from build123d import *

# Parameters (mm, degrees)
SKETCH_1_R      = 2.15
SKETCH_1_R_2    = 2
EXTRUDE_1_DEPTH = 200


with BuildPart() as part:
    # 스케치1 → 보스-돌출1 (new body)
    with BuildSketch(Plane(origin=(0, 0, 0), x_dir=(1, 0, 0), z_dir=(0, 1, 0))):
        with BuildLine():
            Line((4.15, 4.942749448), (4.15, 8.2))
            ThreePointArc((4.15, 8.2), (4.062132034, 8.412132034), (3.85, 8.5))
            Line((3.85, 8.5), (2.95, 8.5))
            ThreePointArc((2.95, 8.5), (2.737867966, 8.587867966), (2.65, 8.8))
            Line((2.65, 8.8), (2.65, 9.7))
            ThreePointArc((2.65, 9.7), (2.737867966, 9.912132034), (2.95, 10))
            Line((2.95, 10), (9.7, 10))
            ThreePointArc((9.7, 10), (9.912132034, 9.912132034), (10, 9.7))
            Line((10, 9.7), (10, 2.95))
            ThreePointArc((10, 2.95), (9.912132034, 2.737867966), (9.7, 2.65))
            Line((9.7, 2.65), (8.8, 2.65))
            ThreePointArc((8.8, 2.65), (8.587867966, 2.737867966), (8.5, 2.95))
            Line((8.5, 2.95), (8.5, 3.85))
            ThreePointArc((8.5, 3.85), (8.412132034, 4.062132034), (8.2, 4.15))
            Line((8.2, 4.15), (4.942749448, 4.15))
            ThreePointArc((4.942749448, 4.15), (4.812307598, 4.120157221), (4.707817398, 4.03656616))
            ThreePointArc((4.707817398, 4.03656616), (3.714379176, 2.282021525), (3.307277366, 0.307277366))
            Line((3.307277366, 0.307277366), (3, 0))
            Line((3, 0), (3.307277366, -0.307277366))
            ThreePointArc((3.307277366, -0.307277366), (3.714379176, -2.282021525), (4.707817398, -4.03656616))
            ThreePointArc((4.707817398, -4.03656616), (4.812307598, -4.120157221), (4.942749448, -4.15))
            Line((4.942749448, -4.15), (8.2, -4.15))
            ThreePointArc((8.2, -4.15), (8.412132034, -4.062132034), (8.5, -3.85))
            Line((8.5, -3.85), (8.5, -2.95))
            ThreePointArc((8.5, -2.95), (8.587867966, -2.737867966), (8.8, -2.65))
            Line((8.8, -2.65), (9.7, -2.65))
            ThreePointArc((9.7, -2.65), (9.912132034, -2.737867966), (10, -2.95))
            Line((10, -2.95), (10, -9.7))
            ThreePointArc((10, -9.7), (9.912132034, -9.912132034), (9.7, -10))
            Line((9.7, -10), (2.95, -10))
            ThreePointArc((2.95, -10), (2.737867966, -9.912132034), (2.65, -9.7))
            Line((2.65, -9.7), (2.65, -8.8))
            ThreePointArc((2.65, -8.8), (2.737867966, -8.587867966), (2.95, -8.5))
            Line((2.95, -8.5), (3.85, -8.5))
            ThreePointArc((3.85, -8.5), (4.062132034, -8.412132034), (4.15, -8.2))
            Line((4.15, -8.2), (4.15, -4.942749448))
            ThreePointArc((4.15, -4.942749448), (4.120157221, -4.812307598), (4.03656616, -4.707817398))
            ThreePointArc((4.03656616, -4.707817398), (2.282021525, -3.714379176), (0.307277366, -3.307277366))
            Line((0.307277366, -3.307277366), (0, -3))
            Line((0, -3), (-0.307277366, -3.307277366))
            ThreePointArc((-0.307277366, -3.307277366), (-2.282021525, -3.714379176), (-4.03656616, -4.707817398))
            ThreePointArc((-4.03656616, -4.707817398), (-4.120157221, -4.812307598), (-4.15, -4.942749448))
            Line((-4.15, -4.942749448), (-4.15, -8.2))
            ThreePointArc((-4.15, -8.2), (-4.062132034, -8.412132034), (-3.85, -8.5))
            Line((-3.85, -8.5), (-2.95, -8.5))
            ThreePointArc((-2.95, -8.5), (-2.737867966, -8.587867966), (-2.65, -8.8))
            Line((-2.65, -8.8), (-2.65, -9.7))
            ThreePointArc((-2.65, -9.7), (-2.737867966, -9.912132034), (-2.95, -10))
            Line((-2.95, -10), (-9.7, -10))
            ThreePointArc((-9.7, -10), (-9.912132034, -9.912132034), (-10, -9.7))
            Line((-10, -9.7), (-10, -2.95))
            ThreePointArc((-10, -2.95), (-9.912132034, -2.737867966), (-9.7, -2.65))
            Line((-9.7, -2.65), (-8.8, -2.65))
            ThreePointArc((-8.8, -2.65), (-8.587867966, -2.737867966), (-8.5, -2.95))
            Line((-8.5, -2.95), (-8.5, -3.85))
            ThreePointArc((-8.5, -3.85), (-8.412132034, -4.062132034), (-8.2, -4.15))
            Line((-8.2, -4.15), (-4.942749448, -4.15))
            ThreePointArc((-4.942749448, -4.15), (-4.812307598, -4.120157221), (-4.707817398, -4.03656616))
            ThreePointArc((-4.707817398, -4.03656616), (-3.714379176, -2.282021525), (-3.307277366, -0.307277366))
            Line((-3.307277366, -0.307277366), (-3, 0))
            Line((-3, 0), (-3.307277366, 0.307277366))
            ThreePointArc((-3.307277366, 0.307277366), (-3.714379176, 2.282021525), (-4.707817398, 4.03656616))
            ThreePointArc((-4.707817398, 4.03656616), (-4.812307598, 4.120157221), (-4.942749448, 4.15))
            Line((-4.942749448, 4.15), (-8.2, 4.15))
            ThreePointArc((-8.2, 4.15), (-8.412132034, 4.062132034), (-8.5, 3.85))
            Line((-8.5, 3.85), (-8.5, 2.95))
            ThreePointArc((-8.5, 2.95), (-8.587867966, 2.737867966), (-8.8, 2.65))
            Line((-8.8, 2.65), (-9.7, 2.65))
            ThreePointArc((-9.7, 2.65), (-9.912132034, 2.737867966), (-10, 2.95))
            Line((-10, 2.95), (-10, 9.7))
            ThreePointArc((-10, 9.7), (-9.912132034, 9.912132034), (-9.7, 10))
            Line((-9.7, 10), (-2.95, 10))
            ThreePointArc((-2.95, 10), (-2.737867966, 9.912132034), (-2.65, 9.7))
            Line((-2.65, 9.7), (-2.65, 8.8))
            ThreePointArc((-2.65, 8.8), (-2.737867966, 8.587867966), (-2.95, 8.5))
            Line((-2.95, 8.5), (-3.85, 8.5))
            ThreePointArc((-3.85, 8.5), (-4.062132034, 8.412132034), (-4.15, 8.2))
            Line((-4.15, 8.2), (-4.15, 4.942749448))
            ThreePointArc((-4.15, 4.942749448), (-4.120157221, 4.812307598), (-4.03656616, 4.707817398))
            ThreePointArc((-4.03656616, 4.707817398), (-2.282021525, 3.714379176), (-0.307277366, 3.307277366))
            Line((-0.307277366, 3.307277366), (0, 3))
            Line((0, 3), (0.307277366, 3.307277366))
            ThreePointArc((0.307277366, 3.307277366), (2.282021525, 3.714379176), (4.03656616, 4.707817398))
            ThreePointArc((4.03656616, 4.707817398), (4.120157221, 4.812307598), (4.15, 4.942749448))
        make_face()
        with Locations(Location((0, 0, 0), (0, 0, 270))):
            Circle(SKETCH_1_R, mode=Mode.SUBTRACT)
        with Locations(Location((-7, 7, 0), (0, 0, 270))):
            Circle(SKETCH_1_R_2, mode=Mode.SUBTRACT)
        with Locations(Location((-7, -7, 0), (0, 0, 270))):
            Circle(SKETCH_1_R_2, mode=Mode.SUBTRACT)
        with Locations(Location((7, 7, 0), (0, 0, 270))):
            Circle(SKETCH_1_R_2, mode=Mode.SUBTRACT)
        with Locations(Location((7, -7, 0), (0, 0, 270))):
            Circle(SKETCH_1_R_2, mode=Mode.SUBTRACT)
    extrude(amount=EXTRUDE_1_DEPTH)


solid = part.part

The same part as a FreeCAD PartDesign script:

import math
import FreeCAD as App
import Part
import Sketcher
from FreeCAD import Vector

doc = App.newDocument("Part")
params = doc.addObject("Spreadsheet::Sheet", "Params")
for row, (alias, value) in enumerate([
    ("sketch1_diameter", "4 mm"),
    ("sketch1_diameter2", "4.3 mm"),
    ("sketch1_radius", "0.3 mm"),
    ("sketch1_width", "0.9 mm"),
    ("sketch1_width2", "6.75 mm"),
    ("pad1_length", "200 mm"),
], start=1):
    params.set(f"A{row}", alias)
    params.set(f"B{row}", "=" + value)
    params.setAlias(f"B{row}", alias)

body = doc.addObject("PartDesign::Body", "Body")

# Sketch on XZ plane
sketch1 = doc.addObject("Sketcher::SketchObject", "Sketch")
body.addObject(sketch1)
sketch1.AttachmentSupport = (doc.XZ_Plane, [""])
sketch1.MapMode = "FlatFace"
sketch1.addGeometry(Part.LineSegment(Vector(4.15, -8.2, 0), Vector(4.15, -4.94, 0)), False)
sketch1.addGeometry(Part.ArcOfCircle(Part.Circle(Vector(3.85, -4.94, 0), Vector(0, 0, 1), 0.3), math.radians(0), math.radians(52)), False)
sketch1.addGeometry(Part.ArcOfCircle(Part.Circle(Vector(0, -9.79, 0), Vector(0, 0, 1), 6.49), math.radians(52), math.radians(87)), False)
sketch1.addGeometry(Part.LineSegment(Vector(0.31, -3.31, 0), Vector(0, -3, 0)), False)
sketch1.addGeometry(Part.LineSegment(Vector(0, -3, 0), Vector(-0.31, -3.31, 0)), False)
sketch1.addGeometry(Part.ArcOfCircle(Part.Circle(Vector(0, -9.79, 0), Vector(0, 0, 1), 6.49), math.radians(93), math.radians(128)), False)
sketch1.addGeometry(Part.ArcOfCircle(Part.Circle(Vector(-3.85, -4.94, 0), Vector(0, 0, 1), 0.3), math.radians(128), math.radians(180)), False)
sketch1.addGeometry(Part.LineSegment(Vector(-4.15, -4.94, 0), Vector(-4.15, -8.2, 0)), False)
sketch1.addGeometry(Part.ArcOfCircle(Part.Circle(Vector(-3.85, -8.2, 0), Vector(0, 0, 1), 0.3), math.radians(-180), math.radians(-90)), False)
sketch1.addGeometry(Part.LineSegment(Vector(-3.85, -8.5, 0), Vector(-2.95, -8.5, 0)), False)
sketch1.addGeometry(Part.ArcOfCircle(Part.Circle(Vector(-2.95, -8.8, 0), Vector(0, 0, 1), 0.3), math.radians(0), math.radians(90)), False)
sketch1.addGeometry(Part.LineSegment(Vector(-2.65, -8.8, 0), Vector(-2.65, -9.7, 0)), False)
sketch1.addGeometry(Part.ArcOfCircle(Part.Circle(Vector(-2.95, -9.7, 0), Vector(0, 0, 1), 0.3), math.radians(-90), math.radians(0)), False)
sketch1.addGeometry(Part.LineSegment(Vector(-2.95, -10, 0), Vector(-9.7, -10, 0)), False)
sketch1.addGeometry(Part.ArcOfCircle(Part.Circle(Vector(-9.7, -9.7, 0), Vector(0, 0, 1), 0.3), math.radians(-180), math.radians(-90)), False)
sketch1.addGeometry(Part.LineSegment(Vector(-10, -9.7, 0), Vector(-10, -2.95, 0)), False)
sketch1.addGeometry(Part.ArcOfCircle(Part.Circle(Vector(-9.7, -2.95, 0), Vector(0, 0, 1), 0.3), math.radians(90), math.radians(180)), False)
sketch1.addGeometry(Part.LineSegment(Vector(-9.7, -2.65, 0), Vector(-8.8, -2.65, 0)), False)
sketch1.addGeometry(Part.ArcOfCircle(Part.Circle(Vector(-8.8, -2.95, 0), Vector(0, 0, 1), 0.3), math.radians(0), math.radians(90)), False)
sketch1.addGeometry(Part.LineSegment(Vector(-8.5, -2.95, 0), Vector(-8.5, -3.85, 0)), False)
sketch1.addGeometry(Part.ArcOfCircle(Part.Circle(Vector(-8.2, -3.85, 0), Vector(0, 0, 1), 0.3), math.radians(-180), math.radians(-90)), False)
sketch1.addGeometry(Part.LineSegment(Vector(-8.2, -4.15, 0), Vector(-4.94, -4.15, 0)), False)
sketch1.addGeometry(Part.ArcOfCircle(Part.Circle(Vector(-4.94, -3.85, 0), Vector(0, 0, 1), 0.3), math.radians(-90), math.radians(-38)), False)
sketch1.addGeometry(Part.ArcOfCircle(Part.Circle(Vector(-9.79, 0, 0), Vector(0, 0, 1), 6.49), math.radians(-38), math.radians(-3)), False)
sketch1.addGeometry(Part.LineSegment(Vector(-3.31, -0.31, 0), Vector(-3, 0, 0)), False)
sketch1.addGeometry(Part.LineSegment(Vector(-3, 0, 0), Vector(-3.31, 0.31, 0)), False)
sketch1.addGeometry(Part.ArcOfCircle(Part.Circle(Vector(-9.79, 0, 0), Vector(0, 0, 1), 6.49), math.radians(3), math.radians(38)), False)
sketch1.addGeometry(Part.ArcOfCircle(Part.Circle(Vector(-4.94, 3.85, 0), Vector(0, 0, 1), 0.3), math.radians(38), math.radians(90)), False)
sketch1.addGeometry(Part.LineSegment(Vector(-4.94, 4.15, 0), Vector(-8.2, 4.15, 0)), False)
sketch1.addGeometry(Part.ArcOfCircle(Part.Circle(Vector(-8.2, 3.85, 0), Vector(0, 0, 1), 0.3), math.radians(90), math.radians(180)), False)
sketch1.addGeometry(Part.LineSegment(Vector(-8.5, 3.85, 0), Vector(-8.5, 2.95, 0)), False)
sketch1.addGeometry(Part.ArcOfCircle(Part.Circle(Vector(-8.8, 2.95, 0), Vector(0, 0, 1), 0.3), math.radians(-90), math.radians(0)), False)
sketch1.addGeometry(Part.LineSegment(Vector(-8.8, 2.65, 0), Vector(-9.7, 2.65, 0)), False)
sketch1.addGeometry(Part.ArcOfCircle(Part.Circle(Vector(-9.7, 2.95, 0), Vector(0, 0, 1), 0.3), math.radians(-180), math.radians(-90)), False)
sketch1.addGeometry(Part.LineSegment(Vector(-10, 2.95, 0), Vector(-10, 9.7, 0)), False)
sketch1.addGeometry(Part.ArcOfCircle(Part.Circle(Vector(-9.7, 9.7, 0), Vector(0, 0, 1), 0.3), math.radians(90), math.radians(180)), False)
sketch1.addGeometry(Part.LineSegment(Vector(-9.7, 10, 0), Vector(-2.95, 10, 0)), False)
sketch1.addGeometry(Part.ArcOfCircle(Part.Circle(Vector(-2.95, 9.7, 0), Vector(0, 0, 1), 0.3), math.radians(0), math.radians(90)), False)
sketch1.addGeometry(Part.LineSegment(Vector(-2.65, 9.7, 0), Vector(-2.65, 8.8, 0)), False)
sketch1.addGeometry(Part.ArcOfCircle(Part.Circle(Vector(-2.95, 8.8, 0), Vector(0, 0, 1), 0.3), math.radians(-90), math.radians(0)), False)
sketch1.addGeometry(Part.LineSegment(Vector(-2.95, 8.5, 0), Vector(-3.85, 8.5, 0)), False)
sketch1.addGeometry(Part.ArcOfCircle(Part.Circle(Vector(-3.85, 8.2, 0), Vector(0, 0, 1), 0.3), math.radians(90), math.radians(180)), False)
sketch1.addGeometry(Part.LineSegment(Vector(-4.15, 8.2, 0), Vector(-4.15, 4.94, 0)), False)
sketch1.addGeometry(Part.ArcOfCircle(Part.Circle(Vector(-3.85, 4.94, 0), Vector(0, 0, 1), 0.3), math.radians(180), math.radians(232)), False)
sketch1.addGeometry(Part.ArcOfCircle(Part.Circle(Vector(0, 9.79, 0), Vector(0, 0, 1), 6.49), math.radians(-128), math.radians(-93)), False)
sketch1.addGeometry(Part.LineSegment(Vector(-0.31, 3.31, 0), Vector(0, 3, 0)), False)
sketch1.addGeometry(Part.LineSegment(Vector(0, 3, 0), Vector(0.31, 3.31, 0)), False)
sketch1.addGeometry(Part.ArcOfCircle(Part.Circle(Vector(0, 9.79, 0), Vector(0, 0, 1), 6.49), math.radians(-87), math.radians(-52)), False)
sketch1.addGeometry(Part.ArcOfCircle(Part.Circle(Vector(3.85, 4.94, 0), Vector(0, 0, 1), 0.3), math.radians(-52), math.radians(0)), False)
sketch1.addGeometry(Part.LineSegment(Vector(4.15, 4.94, 0), Vector(4.15, 8.2, 0)), False)
sketch1.addGeometry(Part.ArcOfCircle(Part.Circle(Vector(3.85, 8.2, 0), Vector(0, 0, 1), 0.3), math.radians(0), math.radians(90)), False)
sketch1.addGeometry(Part.LineSegment(Vector(3.85, 8.5, 0), Vector(2.95, 8.5, 0)), False)
sketch1.addGeometry(Part.ArcOfCircle(Part.Circle(Vector(2.95, 8.8, 0), Vector(0, 0, 1), 0.3), math.radians(-180), math.radians(-90)), False)
sketch1.addGeometry(Part.LineSegment(Vector(2.65, 8.8, 0), Vector(2.65, 9.7, 0)), False)
sketch1.addGeometry(Part.ArcOfCircle(Part.Circle(Vector(2.95, 9.7, 0), Vector(0, 0, 1), 0.3), math.radians(90), math.radians(180)), False)
sketch1.addGeometry(Part.LineSegment(Vector(2.95, 10, 0), Vector(9.7, 10, 0)), False)
sketch1.addGeometry(Part.ArcOfCircle(Part.Circle(Vector(9.7, 9.7, 0), Vector(0, 0, 1), 0.3), math.radians(0), math.radians(90)), False)
sketch1.addGeometry(Part.LineSegment(Vector(10, 9.7, 0), Vector(10, 2.95, 0)), False)
sketch1.addGeometry(Part.ArcOfCircle(Part.Circle(Vector(9.7, 2.95, 0), Vector(0, 0, 1), 0.3), math.radians(-90), math.radians(0)), False)
sketch1.addGeometry(Part.LineSegment(Vector(9.7, 2.65, 0), Vector(8.8, 2.65, 0)), False)
sketch1.addGeometry(Part.ArcOfCircle(Part.Circle(Vector(8.8, 2.95, 0), Vector(0, 0, 1), 0.3), math.radians(-180), math.radians(-90)), False)
sketch1.addGeometry(Part.LineSegment(Vector(8.5, 2.95, 0), Vector(8.5, 3.85, 0)), False)
sketch1.addGeometry(Part.ArcOfCircle(Part.Circle(Vector(8.2, 3.85, 0), Vector(0, 0, 1), 0.3), math.radians(0), math.radians(90)), False)
sketch1.addGeometry(Part.LineSegment(Vector(8.2, 4.15, 0), Vector(4.94, 4.15, 0)), False)
sketch1.addGeometry(Part.ArcOfCircle(Part.Circle(Vector(4.94, 3.85, 0), Vector(0, 0, 1), 0.3), math.radians(90), math.radians(142)), False)
sketch1.addGeometry(Part.ArcOfCircle(Part.Circle(Vector(9.79, 0, 0), Vector(0, 0, 1), 6.49), math.radians(142), math.radians(177)), False)
sketch1.addGeometry(Part.LineSegment(Vector(3.31, 0.31, 0), Vector(3, 0, 0)), False)
sketch1.addGeometry(Part.LineSegment(Vector(3, 0, 0), Vector(3.31, -0.31, 0)), False)
sketch1.addGeometry(Part.ArcOfCircle(Part.Circle(Vector(9.79, 0, 0), Vector(0, 0, 1), 6.49), math.radians(-177), math.radians(-142)), False)
sketch1.addGeometry(Part.ArcOfCircle(Part.Circle(Vector(4.94, -3.85, 0), Vector(0, 0, 1), 0.3), math.radians(-142), math.radians(-90)), False)
sketch1.addGeometry(Part.LineSegment(Vector(4.94, -4.15, 0), Vector(8.2, -4.15, 0)), False)
sketch1.addGeometry(Part.ArcOfCircle(Part.Circle(Vector(8.2, -3.85, 0), Vector(0, 0, 1), 0.3), math.radians(-90), math.radians(0)), False)
sketch1.addGeometry(Part.LineSegment(Vector(8.5, -3.85, 0), Vector(8.5, -2.95, 0)), False)
sketch1.addGeometry(Part.ArcOfCircle(Part.Circle(Vector(8.8, -2.95, 0), Vector(0, 0, 1), 0.3), math.radians(90), math.radians(180)), False)
sketch1.addGeometry(Part.LineSegment(Vector(8.8, -2.65, 0), Vector(9.7, -2.65, 0)), False)
sketch1.addGeometry(Part.ArcOfCircle(Part.Circle(Vector(9.7, -2.95, 0), Vector(0, 0, 1), 0.3), math.radians(0), math.radians(90)), False)
sketch1.addGeometry(Part.LineSegment(Vector(10, -2.95, 0), Vector(10, -9.7, 0)), False)
sketch1.addGeometry(Part.ArcOfCircle(Part.Circle(Vector(9.7, -9.7, 0), Vector(0, 0, 1), 0.3), math.radians(-90), math.radians(0)), False)
sketch1.addGeometry(Part.LineSegment(Vector(9.7, -10, 0), Vector(2.95, -10, 0)), False)
sketch1.addGeometry(Part.ArcOfCircle(Part.Circle(Vector(2.95, -9.7, 0), Vector(0, 0, 1), 0.3), math.radians(-180), math.radians(-90)), False)
sketch1.addGeometry(Part.LineSegment(Vector(2.65, -9.7, 0), Vector(2.65, -8.8, 0)), False)
sketch1.addGeometry(Part.ArcOfCircle(Part.Circle(Vector(2.95, -8.8, 0), Vector(0, 0, 1), 0.3), math.radians(90), math.radians(180)), False)
sketch1.addGeometry(Part.LineSegment(Vector(2.95, -8.5, 0), Vector(3.85, -8.5, 0)), False)
sketch1.addGeometry(Part.ArcOfCircle(Part.Circle(Vector(3.85, -8.2, 0), Vector(0, 0, 1), 0.3), math.radians(-90), math.radians(0)), False)
sketch1.addGeometry(Part.Circle(Vector(7, 7, 0), Vector(0, 0, 1), 2), False)
sketch1.addGeometry(Part.Circle(Vector(-7, 7, 0), Vector(0, 0, 1), 2), False)
sketch1.addGeometry(Part.Circle(Vector(7, -7, 0), Vector(0, 0, 1), 2), False)
sketch1.addGeometry(Part.Circle(Vector(0, 0, 0), Vector(0, 0, 1), 2.15), False)
sketch1.addGeometry(Part.Circle(Vector(-7, -7, 0), Vector(0, 0, 1), 2), False)
sketch1.addConstraint(Sketcher.Constraint("Tangent", 0, 2, 1, 1))
sketch1.addConstraint(Sketcher.Constraint("Tangent", 1, 2, 2, 1))
sketch1.addConstraint(Sketcher.Constraint("Coincident", 2, 2, 3, 1))
sketch1.addConstraint(Sketcher.Constraint("Coincident", 3, 2, 4, 1))
sketch1.addConstraint(Sketcher.Constraint("Coincident", 4, 2, 5, 1))
sketch1.addConstraint(Sketcher.Constraint("Tangent", 5, 2, 6, 1))
sketch1.addConstraint(Sketcher.Constraint("Tangent", 6, 2, 7, 1))
sketch1.addConstraint(Sketcher.Constraint("Tangent", 7, 2, 8, 1))
sketch1.addConstraint(Sketcher.Constraint("Tangent", 8, 2, 9, 1))
sketch1.addConstraint(Sketcher.Constraint("Tangent", 9, 2, 10, 2))
sketch1.addConstraint(Sketcher.Constraint("Tangent", 10, 1, 11, 1))
sketch1.addConstraint(Sketcher.Constraint("Tangent", 11, 2, 12, 2))
sketch1.addConstraint(Sketcher.Constraint("Tangent", 12, 1, 13, 1))
sketch1.addConstraint(Sketcher.Constraint("Tangent", 13, 2, 14, 2))
sketch1.addConstraint(Sketcher.Constraint("Tangent", 14, 1, 15, 1))
sketch1.addConstraint(Sketcher.Constraint("Tangent", 15, 2, 16, 2))
sketch1.addConstraint(Sketcher.Constraint("Tangent", 16, 1, 17, 1))
sketch1.addConstraint(Sketcher.Constraint("Tangent", 17, 2, 18, 2))
sketch1.addConstraint(Sketcher.Constraint("Tangent", 18, 1, 19, 1))
sketch1.addConstraint(Sketcher.Constraint("Tangent", 19, 2, 20, 1))
sketch1.addConstraint(Sketcher.Constraint("Tangent", 20, 2, 21, 1))
sketch1.addConstraint(Sketcher.Constraint("Tangent", 21, 2, 22, 1))
sketch1.addConstraint(Sketcher.Constraint("Tangent", 22, 2, 23, 1))
sketch1.addConstraint(Sketcher.Constraint("Coincident", 23, 2, 24, 1))
sketch1.addConstraint(Sketcher.Constraint("Coincident", 24, 2, 25, 1))
sketch1.addConstraint(Sketcher.Constraint("Coincident", 25, 2, 26, 1))
sketch1.addConstraint(Sketcher.Constraint("Tangent", 26, 2, 27, 1))
sketch1.addConstraint(Sketcher.Constraint("Tangent", 27, 2, 28, 1))
sketch1.addConstraint(Sketcher.Constraint("Tangent", 28, 2, 29, 1))
sketch1.addConstraint(Sketcher.Constraint("Tangent", 29, 2, 30, 1))
sketch1.addConstraint(Sketcher.Constraint("Tangent", 30, 2, 31, 2))
sketch1.addConstraint(Sketcher.Constraint("Tangent", 31, 1, 32, 1))
sketch1.addConstraint(Sketcher.Constraint("Tangent", 32, 2, 33, 2))
sketch1.addConstraint(Sketcher.Constraint("Tangent", 33, 1, 34, 1))
sketch1.addConstraint(Sketcher.Constraint("Tangent", 34, 2, 35, 2))
sketch1.addConstraint(Sketcher.Constraint("Tangent", 35, 1, 36, 1))
sketch1.addConstraint(Sketcher.Constraint("Tangent", 36, 2, 37, 2))
sketch1.addConstraint(Sketcher.Constraint("Tangent", 37, 1, 38, 1))
sketch1.addConstraint(Sketcher.Constraint("Tangent", 38, 2, 39, 2))
sketch1.addConstraint(Sketcher.Constraint("Tangent", 39, 1, 40, 1))
sketch1.addConstraint(Sketcher.Constraint("Tangent", 40, 2, 41, 1))
sketch1.addConstraint(Sketcher.Constraint("Tangent", 41, 2, 42, 1))
sketch1.addConstraint(Sketcher.Constraint("Tangent", 42, 2, 43, 1))
sketch1.addConstraint(Sketcher.Constraint("Tangent", 43, 2, 44, 1))
sketch1.addConstraint(Sketcher.Constraint("Coincident", 44, 2, 45, 1))
sketch1.addConstraint(Sketcher.Constraint("Coincident", 45, 2, 46, 1))
sketch1.addConstraint(Sketcher.Constraint("Coincident", 46, 2, 47, 1))
sketch1.addConstraint(Sketcher.Constraint("Tangent", 47, 2, 48, 1))
sketch1.addConstraint(Sketcher.Constraint("Tangent", 48, 2, 49, 1))
sketch1.addConstraint(Sketcher.Constraint("Tangent", 49, 2, 50, 1))
sketch1.addConstraint(Sketcher.Constraint("Tangent", 50, 2, 51, 1))
sketch1.addConstraint(Sketcher.Constraint("Tangent", 51, 2, 52, 2))
sketch1.addConstraint(Sketcher.Constraint("Tangent", 52, 1, 53, 1))
sketch1.addConstraint(Sketcher.Constraint("Tangent", 53, 2, 54, 2))
sketch1.addConstraint(Sketcher.Constraint("Tangent", 54, 1, 55, 1))
sketch1.addConstraint(Sketcher.Constraint("Tangent", 55, 2, 56, 2))
sketch1.addConstraint(Sketcher.Constraint("Tangent", 56, 1, 57, 1))
sketch1.addConstraint(Sketcher.Constraint("Tangent", 57, 2, 58, 2))
sketch1.addConstraint(Sketcher.Constraint("Tangent", 58, 1, 59, 1))
sketch1.addConstraint(Sketcher.Constraint("Tangent", 59, 2, 60, 2))
sketch1.addConstraint(Sketcher.Constraint("Tangent", 60, 1, 61, 1))
sketch1.addConstraint(Sketcher.Constraint("Tangent", 61, 2, 62, 1))
sketch1.addConstraint(Sketcher.Constraint("Tangent", 62, 2, 63, 1))
sketch1.addConstraint(Sketcher.Constraint("Tangent", 63, 2, 64, 1))
sketch1.addConstraint(Sketcher.Constraint("Tangent", 64, 2, 65, 1))
sketch1.addConstraint(Sketcher.Constraint("Coincident", 65, 2, 66, 1))
sketch1.addConstraint(Sketcher.Constraint("Coincident", 66, 2, 67, 1))
sketch1.addConstraint(Sketcher.Constraint("Coincident", 67, 2, 68, 1))
sketch1.addConstraint(Sketcher.Constraint("Tangent", 68, 2, 69, 1))
sketch1.addConstraint(Sketcher.Constraint("Tangent", 69, 2, 70, 1))
sketch1.addConstraint(Sketcher.Constraint("Tangent", 70, 2, 71, 1))
sketch1.addConstraint(Sketcher.Constraint("Tangent", 71, 2, 72, 1))
sketch1.addConstraint(Sketcher.Constraint("Tangent", 72, 2, 73, 2))
sketch1.addConstraint(Sketcher.Constraint("Tangent", 73, 1, 74, 1))
sketch1.addConstraint(Sketcher.Constraint("Tangent", 74, 2, 75, 2))
sketch1.addConstraint(Sketcher.Constraint("Tangent", 75, 1, 76, 1))
sketch1.addConstraint(Sketcher.Constraint("Tangent", 76, 2, 77, 2))
sketch1.addConstraint(Sketcher.Constraint("Tangent", 77, 1, 78, 1))
sketch1.addConstraint(Sketcher.Constraint("Tangent", 78, 2, 79, 2))
sketch1.addConstraint(Sketcher.Constraint("Tangent", 79, 1, 80, 1))
sketch1.addConstraint(Sketcher.Constraint("Tangent", 80, 2, 81, 2))
sketch1.addConstraint(Sketcher.Constraint("Tangent", 81, 1, 82, 1))
sketch1.addConstraint(Sketcher.Constraint("Tangent", 82, 2, 83, 1))
sketch1.addConstraint(Sketcher.Constraint("Tangent", 83, 2, 0, 1))
sketch1.addConstraint(Sketcher.Constraint("Vertical", 0))
sketch1.addConstraint(Sketcher.Constraint("Vertical", 7))
sketch1.addConstraint(Sketcher.Constraint("Horizontal", 9))
sketch1.addConstraint(Sketcher.Constraint("Vertical", 11))
sketch1.addConstraint(Sketcher.Constraint("Horizontal", 13))
sketch1.addConstraint(Sketcher.Constraint("Vertical", 15))
sketch1.addConstraint(Sketcher.Constraint("Horizontal", 17))
sketch1.addConstraint(Sketcher.Constraint("Vertical", 19))
sketch1.addConstraint(Sketcher.Constraint("Horizontal", 21))
sketch1.addConstraint(Sketcher.Constraint("Horizontal", 28))
sketch1.addConstraint(Sketcher.Constraint("Vertical", 30))
sketch1.addConstraint(Sketcher.Constraint("Horizontal", 32))
sketch1.addConstraint(Sketcher.Constraint("Vertical", 34))
sketch1.addConstraint(Sketcher.Constraint("Horizontal", 36))
sketch1.addConstraint(Sketcher.Constraint("Vertical", 38))
sketch1.addConstraint(Sketcher.Constraint("Horizontal", 40))
sketch1.addConstraint(Sketcher.Constraint("Vertical", 42))
sketch1.addConstraint(Sketcher.Constraint("Vertical", 49))
sketch1.addConstraint(Sketcher.Constraint("Horizontal", 51))
sketch1.addConstraint(Sketcher.Constraint("Vertical", 53))
sketch1.addConstraint(Sketcher.Constraint("Horizontal", 55))
sketch1.addConstraint(Sketcher.Constraint("Vertical", 57))
sketch1.addConstraint(Sketcher.Constraint("Horizontal", 59))
sketch1.addConstraint(Sketcher.Constraint("Vertical", 61))
sketch1.addConstraint(Sketcher.Constraint("Horizontal", 63))
sketch1.addConstraint(Sketcher.Constraint("Horizontal", 70))
sketch1.addConstraint(Sketcher.Constraint("Vertical", 72))
sketch1.addConstraint(Sketcher.Constraint("Horizontal", 74))
sketch1.addConstraint(Sketcher.Constraint("Vertical", 76))
sketch1.addConstraint(Sketcher.Constraint("Horizontal", 78))
sketch1.addConstraint(Sketcher.Constraint("Vertical", 80))
sketch1.addConstraint(Sketcher.Constraint("Horizontal", 82))
sketch1.addConstraint(Sketcher.Constraint("Coincident", 87, 3, -1, 1))
sketch1.addConstraint(Sketcher.Constraint("Coincident", 5, 3, 2, 3))
sketch1.addConstraint(Sketcher.Constraint("Coincident", 26, 3, 23, 3))
sketch1.addConstraint(Sketcher.Constraint("Coincident", 47, 3, 44, 3))
sketch1.addConstraint(Sketcher.Constraint("Coincident", 68, 3, 65, 3))
sketch1.addConstraint(Sketcher.Constraint("Equal", 2, 5))
sketch1.addConstraint(Sketcher.Constraint("Equal", 1, 6))
sketch1.addConstraint(Sketcher.Constraint("Equal", 6, 8))
sketch1.addConstraint(Sketcher.Constraint("Equal", 8, 10))
sketch1.addConstraint(Sketcher.Constraint("Equal", 10, 12))
sketch1.addConstraint(Sketcher.Constraint("Equal", 12, 14))
sketch1.addConstraint(Sketcher.Constraint("Equal", 14, 16))
sketch1.addConstraint(Sketcher.Constraint("Equal", 16, 18))
sketch1.addConstraint(Sketcher.Constraint("Equal", 18, 20))
sketch1.addConstraint(Sketcher.Constraint("Equal", 20, 22))
sketch1.addConstraint(Sketcher.Constraint("Equal", 5, 23))
sketch1.addConstraint(Sketcher.Constraint("Equal", 23, 26))
sketch1.addConstraint(Sketcher.Constraint("Equal", 22, 27))
sketch1.addConstraint(Sketcher.Constraint("Equal", 27, 29))
sketch1.addConstraint(Sketcher.Constraint("Equal", 29, 31))
sketch1.addConstraint(Sketcher.Constraint("Equal", 31, 33))
sketch1.addConstraint(Sketcher.Constraint("Equal", 33, 35))
sketch1.addConstraint(Sketcher.Constraint("Equal", 35, 37))
sketch1.addConstraint(Sketcher.Constraint("Equal", 37, 39))
sketch1.addConstraint(Sketcher.Constraint("Equal", 39, 41))
sketch1.addConstraint(Sketcher.Constraint("Equal", 41, 43))
sketch1.addConstraint(Sketcher.Constraint("Equal", 26, 44))
sketch1.addConstraint(Sketcher.Constraint("Equal", 44, 47))
sketch1.addConstraint(Sketcher.Constraint("Equal", 43, 48))
sketch1.addConstraint(Sketcher.Constraint("Equal", 48, 50))
sketch1.addConstraint(Sketcher.Constraint("Equal", 50, 52))
sketch1.addConstraint(Sketcher.Constraint("Equal", 52, 54))
sketch1.addConstraint(Sketcher.Constraint("Equal", 54, 56))
sketch1.addConstraint(Sketcher.Constraint("Equal", 56, 58))
sketch1.addConstraint(Sketcher.Constraint("Equal", 58, 60))
sketch1.addConstraint(Sketcher.Constraint("Equal", 60, 62))
sketch1.addConstraint(Sketcher.Constraint("Equal", 62, 64))
sketch1.addConstraint(Sketcher.Constraint("Equal", 47, 65))
sketch1.addConstraint(Sketcher.Constraint("Equal", 65, 68))
sketch1.addConstraint(Sketcher.Constraint("Equal", 64, 69))
sketch1.addConstraint(Sketcher.Constraint("Equal", 69, 71))
sketch1.addConstraint(Sketcher.Constraint("Equal", 71, 73))
sketch1.addConstraint(Sketcher.Constraint("Equal", 73, 75))
sketch1.addConstraint(Sketcher.Constraint("Equal", 75, 77))
sketch1.addConstraint(Sketcher.Constraint("Equal", 77, 79))
sketch1.addConstraint(Sketcher.Constraint("Equal", 79, 81))
sketch1.addConstraint(Sketcher.Constraint("Equal", 81, 83))
sketch1.addConstraint(Sketcher.Constraint("Equal", 84, 85))
sketch1.addConstraint(Sketcher.Constraint("Equal", 85, 86))
sketch1.addConstraint(Sketcher.Constraint("Equal", 86, 88))
sketch1.addConstraint(Sketcher.Constraint("Symmetric", 1, 3, 43, 3, -1, 1))
sketch1.addConstraint(Sketcher.Constraint("Symmetric", 6, 3, 48, 3, -1, 1))
sketch1.addConstraint(Sketcher.Constraint("Symmetric", 10, 3, 52, 3, -1, 1))
sketch1.addConstraint(Sketcher.Constraint("Symmetric", 14, 3, 56, 3, -1, 1))
sketch1.addConstraint(Sketcher.Constraint("Symmetric", 18, 3, 60, 3, -1, 1))
sketch1.addConstraint(Sketcher.Constraint("Symmetric", 22, 3, 64, 3, -1, 1))
sketch1.addConstraint(Sketcher.Constraint("Symmetric", 27, 3, 69, 3, -1, 1))
sketch1.addConstraint(Sketcher.Constraint("Symmetric", 31, 3, 73, 3, -1, 1))
sketch1.addConstraint(Sketcher.Constraint("Symmetric", 35, 3, 77, 3, -1, 1))
sketch1.addConstraint(Sketcher.Constraint("Symmetric", 39, 3, 81, 3, -1, 1))
sketch1.addConstraint(Sketcher.Constraint("Symmetric", 85, 3, 86, 3, -1, 1))
sketch1.addConstraint(Sketcher.Constraint("Symmetric", 84, 3, 88, 3, -1, 1))
sketch1.addConstraint(Sketcher.Constraint("Symmetric", 3, 2, 45, 2, -1, 1))
sketch1.addConstraint(Sketcher.Constraint("Symmetric", 24, 2, 66, 2, -1, 1))
sketch1.addConstraint(Sketcher.Constraint("Symmetric", 1, 3, 6, 3, -2))
sketch1.addConstraint(Sketcher.Constraint("Symmetric", 39, 3, 52, 3, -2))
sketch1.addConstraint(Sketcher.Constraint("Symmetric", 35, 3, 56, 3, -2))
sketch1.addConstraint(Sketcher.Constraint("Symmetric", 31, 3, 60, 3, -2))
sketch1.addConstraint(Sketcher.Constraint("Symmetric", 27, 3, 64, 3, -2))
sketch1.addConstraint(Sketcher.Constraint("Symmetric", 84, 3, 85, 3, -2))
sketch1.addConstraint(Sketcher.Constraint("PointOnObject", 3, 2, -2))
sketch1.addConstraint(Sketcher.Constraint("PointOnObject", 24, 2, -1))
sketch1.addConstraint(Sketcher.Constraint("Perpendicular", 3, 4))
sketch1.addConstraint(Sketcher.Constraint("Parallel", 4, 24))
sketch1.addConstraint(Sketcher.Constraint("Perpendicular", 24, 25))
sketch1.addConstraint(Sketcher.Constraint("Parallel", 25, 45))
sketch1.addConstraint(Sketcher.Constraint("Perpendicular", 45, 46))
sketch1.addConstraint(Sketcher.Constraint("Parallel", 46, 66))
sketch1.addConstraint(Sketcher.Constraint("Perpendicular", 66, 67))
sketch1.addConstraint(Sketcher.Constraint("Horizontal", 2, 2, 4, 2))
sketch1.addConstraint(Sketcher.Constraint("Equal", 9, 17))
sketch1.addConstraint(Sketcher.Constraint("Equal", 70, 0))
sketch1.addConstraint(Sketcher.Constraint("Equal", 82, 11))
sketch1.addConstraint(Sketcher.Constraint("Equal", 78, 15))
sketch1.addConstraint(Sketcher.Constraint("Equal", 11, 19))
sketch1.addConstraint(Sketcher.Constraint("Equal", 4, 24))
sketch1.addConstraint(Sketcher.Constraint("Diameter", 84, 4.0))
sketch1.addConstraint(Sketcher.Constraint("Diameter", 87, 4.3))
sketch1.addConstraint(Sketcher.Constraint("Radius", 1, 0.3))
sketch1.addConstraint(Sketcher.Constraint("DistanceX", 9, 1, 9, 2, 0.9))
sketch1.addConstraint(Sketcher.Constraint("DistanceX", -1, 1, 84, 3, 7.0))
sketch1.addConstraint(Sketcher.Constraint("DistanceY", -1, 1, 84, 3, 7.0))
sketch1.addConstraint(Sketcher.Constraint("DistanceY", 3, 2, -1, 1, 3.0))
sketch1.addConstraint(Sketcher.Constraint("DistanceY", 12, 1, -1, 1, 10.0))
sketch1.addConstraint(Sketcher.Constraint("DistanceX", 14, 1, -1, 1, 10.0))
sketch1.addConstraint(Sketcher.Constraint("DistanceX", 13, 2, 13, 1, 6.75))
sketch1.addConstraint(Sketcher.Constraint("Radius", 2, 6.490833))
sketch1.addConstraint(Sketcher.Constraint("DistanceX", 21, 1, 21, 2, 3.257251))
sketch1.setExpression("Constraints[202]", "Params.sketch1_diameter")
sketch1.setExpression("Constraints[203]", "Params.sketch1_diameter2")
sketch1.setExpression("Constraints[204]", "Params.sketch1_radius")
sketch1.setExpression("Constraints[205]", "Params.sketch1_width")
sketch1.setExpression("Constraints[211]", "Params.sketch1_width2")
pad1 = doc.addObject("PartDesign::Pad", "Pad")
body.addObject(pad1)
pad1.Profile = sketch1
pad1.setExpression("Length", "Params.pad1_length")
pad1.Reversed = True

doc.recompute()
